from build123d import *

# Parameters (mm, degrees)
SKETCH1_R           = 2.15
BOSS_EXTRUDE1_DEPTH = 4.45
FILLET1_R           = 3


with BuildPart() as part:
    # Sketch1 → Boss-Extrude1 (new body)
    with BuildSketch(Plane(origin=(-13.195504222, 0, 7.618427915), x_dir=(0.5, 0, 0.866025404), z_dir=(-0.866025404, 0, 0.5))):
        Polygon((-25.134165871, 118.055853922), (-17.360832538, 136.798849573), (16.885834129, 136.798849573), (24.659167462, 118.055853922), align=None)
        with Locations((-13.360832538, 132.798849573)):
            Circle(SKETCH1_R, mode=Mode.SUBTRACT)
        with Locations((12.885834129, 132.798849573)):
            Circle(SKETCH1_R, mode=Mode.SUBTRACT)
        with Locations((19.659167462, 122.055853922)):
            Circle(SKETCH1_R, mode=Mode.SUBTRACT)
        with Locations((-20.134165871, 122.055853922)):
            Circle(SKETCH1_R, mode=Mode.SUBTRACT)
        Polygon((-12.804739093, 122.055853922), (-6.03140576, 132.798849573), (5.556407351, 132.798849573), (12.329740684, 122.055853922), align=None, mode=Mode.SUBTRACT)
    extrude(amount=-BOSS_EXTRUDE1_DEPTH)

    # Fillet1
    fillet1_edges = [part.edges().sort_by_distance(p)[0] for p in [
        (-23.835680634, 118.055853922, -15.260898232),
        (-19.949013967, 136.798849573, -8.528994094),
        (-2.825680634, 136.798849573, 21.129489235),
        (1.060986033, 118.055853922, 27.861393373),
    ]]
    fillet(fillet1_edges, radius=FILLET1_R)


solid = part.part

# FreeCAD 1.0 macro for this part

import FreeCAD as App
import Part
import Sketcher
from FreeCAD import Vector


def edges_at(feature, points):
    """Names of the edges that pass closest to the given points."""
    edges = feature.Shape.Edges
    near = lambda p: min(range(len(edges)), key=lambda i: edges[i].distToShape(Part.Vertex(*p))[0])
    return sorted({f"Edge{near(p) + 1}" for p in points})

doc = App.newDocument("Part")
body = doc.addObject("PartDesign::Body", "Body")

# Sketch on an angled plane
sketch1 = body.newObject("Sketcher::SketchObject", "Sketch")
sketch1.Placement = App.Placement(Vector(-13.195504, 0, 7.618428), App.Rotation(Vector(0.5, 0, 0.866025404), Vector(0, 1, 0), Vector(-0.866025404, 0, 0.5), "ZXY"))
sketch1.addGeometry(Part.LineSegment(Vector(-17.4, 136.8, 0), Vector(-25.1, 118.1, 0)), False)
sketch1.addGeometry(Part.LineSegment(Vector(-25.1, 118.1, 0), Vector(24.7, 118.1, 0)), False)
sketch1.addGeometry(Part.LineSegment(Vector(24.7, 118.1, 0), Vector(16.9, 136.8, 0)), False)
sketch1.addGeometry(Part.LineSegment(Vector(16.9, 136.8, 0), Vector(-17.4, 136.8, 0)), False)
sketch1.addGeometry(Part.Circle(Vector(19.7, 122.1, 0), Vector(0, 0, 1), 2.1), False)
sketch1.addGeometry(Part.Circle(Vector(-20.1, 122.1, 0), Vector(0, 0, 1), 2.1), False)
sketch1.addGeometry(Part.LineSegment(Vector(-12.8, 122.1, 0), Vector(-6, 132.8, 0)), False)
sketch1.addGeometry(Part.LineSegment(Vector(-6, 132.8, 0), Vector(5.6, 132.8, 0)), False)
sketch1.addGeometry(Part.LineSegment(Vector(5.6, 132.8, 0), Vector(12.3, 122.1, 0)), False)
sketch1.addGeometry(Part.LineSegment(Vector(12.3, 122.1, 0), Vector(-12.8, 122.1, 0)), False)
sketch1.addGeometry(Part.Circle(Vector(12.9, 132.8, 0), Vector(0, 0, 1), 2.1), False)
sketch1.addGeometry(Part.Circle(Vector(-13.4, 132.8, 0), Vector(0, 0, 1), 2.1), False)
sketch1.addConstraint(Sketcher.Constraint("Coincident", 0, 2, 1, 1))
sketch1.addConstraint(Sketcher.Constraint("Coincident", 1, 2, 2, 1))
sketch1.addConstraint(Sketcher.Constraint("Coincident", 2, 2, 3, 1))
sketch1.addConstraint(Sketcher.Constraint("Coincident", 3, 2, 0, 1))
sketch1.addConstraint(Sketcher.Constraint("Coincident", 6, 2, 7, 1))
sketch1.addConstraint(Sketcher.Constraint("Coincident", 7, 2, 8, 1))
sketch1.addConstraint(Sketcher.Constraint("Coincident", 8, 2, 9, 1))
sketch1.addConstraint(Sketcher.Constraint("Coincident", 9, 2, 6, 1))
sketch1.addConstraint(Sketcher.Constraint("Horizontal", 1))
sketch1.addConstraint(Sketcher.Constraint("Horizontal", 3))
sketch1.addConstraint(Sketcher.Constraint("Horizontal", 7))
sketch1.addConstraint(Sketcher.Constraint("Horizontal", 9))
sketch1.addConstraint(Sketcher.Constraint("Equal", 4, 5))
sketch1.addConstraint(Sketcher.Constraint("Equal", 5, 10))
sketch1.addConstraint(Sketcher.Constraint("Equal", 10, 11))
sketch1.addConstraint(Sketcher.Constraint("Horizontal", 4, 3, 5, 3))
sketch1.addConstraint(Sketcher.Constraint("Horizontal", 10, 3, 11, 3))
sketch1.addConstraint(Sketcher.Constraint("Horizontal", 11, 3, 6, 2))
sketch1.addConstraint(Sketcher.Constraint("Horizontal", 5, 3, 8, 2))
sketch1.addConstraint(Sketcher.Constraint("Equal", 0, 2))
sketch1.addConstraint(Sketcher.Constraint("Equal", 6, 8))
sketch1.addConstraint(Sketcher.Constraint("Diameter", 4, 4.3))
sketch1.addConstraint(Sketcher.Constraint("DistanceX", 0, 2, 5, 3, 5.0))
sketch1.addConstraint(Sketcher.Constraint("DistanceY", 0, 2, 5, 3, 4.0))
sketch1.addConstraint(Sketcher.Constraint("DistanceX", 4, 3, 1, 2, 5.0))
sketch1.addConstraint(Sketcher.Constraint("DistanceX", 10, 3, 2, 2, 4.0))
sketch1.addConstraint(Sketcher.Constraint("DistanceY", 10, 3, 2, 2, 4.0))
sketch1.addConstraint(Sketcher.Constraint("DistanceX", 3, 2, 11, 3, 4.0))
sketch1.addConstraint(Sketcher.Constraint("Distance", 6, 12.7))
sketch1.addConstraint(Sketcher.Constraint("DistanceX", 5, 3, 10, 3, 33.02))
sketch1.addConstraint(Sketcher.Constraint("DistanceX", 9, 2, 9, 1, 25.13448))
sketch1.addConstraint(Sketcher.Constraint("DistanceX", 1, 1, 1, 2, 49.793333))
sketch1.addConstraint(Sketcher.Constraint("DistanceX", 7, 1, 7, 2, 11.587813))
sketch1.addConstraint(Sketcher.Constraint("DistanceY", -1, 1, 10, 3, 132.79885))
sketch1.addConstraint(Sketcher.Constraint("DistanceX", -1, 1, 8, 2, 12.329741))
sketch1.addConstraint(Sketcher.Constraint("DistanceX", 5, 3, 6, 2, 14.10276))
pad1 = body.newObject("PartDesign::Pad", "Pad")
pad1.Profile = sketch1
pad1.Length = 4.45
pad1.Reversed = True
doc.recompute()

fillet = body.newObject("PartDesign::Fillet", "Fillet")
fillet.Base = (pad1, edges_at(pad1, [
    (-23.836, 118.056, -15.261),
    (-19.949, 136.799, -8.529),
    (-2.826, 136.799, 21.129),
    (1.061, 118.056, 27.861),
]))
fillet.Radius = 3

doc.recompute()
